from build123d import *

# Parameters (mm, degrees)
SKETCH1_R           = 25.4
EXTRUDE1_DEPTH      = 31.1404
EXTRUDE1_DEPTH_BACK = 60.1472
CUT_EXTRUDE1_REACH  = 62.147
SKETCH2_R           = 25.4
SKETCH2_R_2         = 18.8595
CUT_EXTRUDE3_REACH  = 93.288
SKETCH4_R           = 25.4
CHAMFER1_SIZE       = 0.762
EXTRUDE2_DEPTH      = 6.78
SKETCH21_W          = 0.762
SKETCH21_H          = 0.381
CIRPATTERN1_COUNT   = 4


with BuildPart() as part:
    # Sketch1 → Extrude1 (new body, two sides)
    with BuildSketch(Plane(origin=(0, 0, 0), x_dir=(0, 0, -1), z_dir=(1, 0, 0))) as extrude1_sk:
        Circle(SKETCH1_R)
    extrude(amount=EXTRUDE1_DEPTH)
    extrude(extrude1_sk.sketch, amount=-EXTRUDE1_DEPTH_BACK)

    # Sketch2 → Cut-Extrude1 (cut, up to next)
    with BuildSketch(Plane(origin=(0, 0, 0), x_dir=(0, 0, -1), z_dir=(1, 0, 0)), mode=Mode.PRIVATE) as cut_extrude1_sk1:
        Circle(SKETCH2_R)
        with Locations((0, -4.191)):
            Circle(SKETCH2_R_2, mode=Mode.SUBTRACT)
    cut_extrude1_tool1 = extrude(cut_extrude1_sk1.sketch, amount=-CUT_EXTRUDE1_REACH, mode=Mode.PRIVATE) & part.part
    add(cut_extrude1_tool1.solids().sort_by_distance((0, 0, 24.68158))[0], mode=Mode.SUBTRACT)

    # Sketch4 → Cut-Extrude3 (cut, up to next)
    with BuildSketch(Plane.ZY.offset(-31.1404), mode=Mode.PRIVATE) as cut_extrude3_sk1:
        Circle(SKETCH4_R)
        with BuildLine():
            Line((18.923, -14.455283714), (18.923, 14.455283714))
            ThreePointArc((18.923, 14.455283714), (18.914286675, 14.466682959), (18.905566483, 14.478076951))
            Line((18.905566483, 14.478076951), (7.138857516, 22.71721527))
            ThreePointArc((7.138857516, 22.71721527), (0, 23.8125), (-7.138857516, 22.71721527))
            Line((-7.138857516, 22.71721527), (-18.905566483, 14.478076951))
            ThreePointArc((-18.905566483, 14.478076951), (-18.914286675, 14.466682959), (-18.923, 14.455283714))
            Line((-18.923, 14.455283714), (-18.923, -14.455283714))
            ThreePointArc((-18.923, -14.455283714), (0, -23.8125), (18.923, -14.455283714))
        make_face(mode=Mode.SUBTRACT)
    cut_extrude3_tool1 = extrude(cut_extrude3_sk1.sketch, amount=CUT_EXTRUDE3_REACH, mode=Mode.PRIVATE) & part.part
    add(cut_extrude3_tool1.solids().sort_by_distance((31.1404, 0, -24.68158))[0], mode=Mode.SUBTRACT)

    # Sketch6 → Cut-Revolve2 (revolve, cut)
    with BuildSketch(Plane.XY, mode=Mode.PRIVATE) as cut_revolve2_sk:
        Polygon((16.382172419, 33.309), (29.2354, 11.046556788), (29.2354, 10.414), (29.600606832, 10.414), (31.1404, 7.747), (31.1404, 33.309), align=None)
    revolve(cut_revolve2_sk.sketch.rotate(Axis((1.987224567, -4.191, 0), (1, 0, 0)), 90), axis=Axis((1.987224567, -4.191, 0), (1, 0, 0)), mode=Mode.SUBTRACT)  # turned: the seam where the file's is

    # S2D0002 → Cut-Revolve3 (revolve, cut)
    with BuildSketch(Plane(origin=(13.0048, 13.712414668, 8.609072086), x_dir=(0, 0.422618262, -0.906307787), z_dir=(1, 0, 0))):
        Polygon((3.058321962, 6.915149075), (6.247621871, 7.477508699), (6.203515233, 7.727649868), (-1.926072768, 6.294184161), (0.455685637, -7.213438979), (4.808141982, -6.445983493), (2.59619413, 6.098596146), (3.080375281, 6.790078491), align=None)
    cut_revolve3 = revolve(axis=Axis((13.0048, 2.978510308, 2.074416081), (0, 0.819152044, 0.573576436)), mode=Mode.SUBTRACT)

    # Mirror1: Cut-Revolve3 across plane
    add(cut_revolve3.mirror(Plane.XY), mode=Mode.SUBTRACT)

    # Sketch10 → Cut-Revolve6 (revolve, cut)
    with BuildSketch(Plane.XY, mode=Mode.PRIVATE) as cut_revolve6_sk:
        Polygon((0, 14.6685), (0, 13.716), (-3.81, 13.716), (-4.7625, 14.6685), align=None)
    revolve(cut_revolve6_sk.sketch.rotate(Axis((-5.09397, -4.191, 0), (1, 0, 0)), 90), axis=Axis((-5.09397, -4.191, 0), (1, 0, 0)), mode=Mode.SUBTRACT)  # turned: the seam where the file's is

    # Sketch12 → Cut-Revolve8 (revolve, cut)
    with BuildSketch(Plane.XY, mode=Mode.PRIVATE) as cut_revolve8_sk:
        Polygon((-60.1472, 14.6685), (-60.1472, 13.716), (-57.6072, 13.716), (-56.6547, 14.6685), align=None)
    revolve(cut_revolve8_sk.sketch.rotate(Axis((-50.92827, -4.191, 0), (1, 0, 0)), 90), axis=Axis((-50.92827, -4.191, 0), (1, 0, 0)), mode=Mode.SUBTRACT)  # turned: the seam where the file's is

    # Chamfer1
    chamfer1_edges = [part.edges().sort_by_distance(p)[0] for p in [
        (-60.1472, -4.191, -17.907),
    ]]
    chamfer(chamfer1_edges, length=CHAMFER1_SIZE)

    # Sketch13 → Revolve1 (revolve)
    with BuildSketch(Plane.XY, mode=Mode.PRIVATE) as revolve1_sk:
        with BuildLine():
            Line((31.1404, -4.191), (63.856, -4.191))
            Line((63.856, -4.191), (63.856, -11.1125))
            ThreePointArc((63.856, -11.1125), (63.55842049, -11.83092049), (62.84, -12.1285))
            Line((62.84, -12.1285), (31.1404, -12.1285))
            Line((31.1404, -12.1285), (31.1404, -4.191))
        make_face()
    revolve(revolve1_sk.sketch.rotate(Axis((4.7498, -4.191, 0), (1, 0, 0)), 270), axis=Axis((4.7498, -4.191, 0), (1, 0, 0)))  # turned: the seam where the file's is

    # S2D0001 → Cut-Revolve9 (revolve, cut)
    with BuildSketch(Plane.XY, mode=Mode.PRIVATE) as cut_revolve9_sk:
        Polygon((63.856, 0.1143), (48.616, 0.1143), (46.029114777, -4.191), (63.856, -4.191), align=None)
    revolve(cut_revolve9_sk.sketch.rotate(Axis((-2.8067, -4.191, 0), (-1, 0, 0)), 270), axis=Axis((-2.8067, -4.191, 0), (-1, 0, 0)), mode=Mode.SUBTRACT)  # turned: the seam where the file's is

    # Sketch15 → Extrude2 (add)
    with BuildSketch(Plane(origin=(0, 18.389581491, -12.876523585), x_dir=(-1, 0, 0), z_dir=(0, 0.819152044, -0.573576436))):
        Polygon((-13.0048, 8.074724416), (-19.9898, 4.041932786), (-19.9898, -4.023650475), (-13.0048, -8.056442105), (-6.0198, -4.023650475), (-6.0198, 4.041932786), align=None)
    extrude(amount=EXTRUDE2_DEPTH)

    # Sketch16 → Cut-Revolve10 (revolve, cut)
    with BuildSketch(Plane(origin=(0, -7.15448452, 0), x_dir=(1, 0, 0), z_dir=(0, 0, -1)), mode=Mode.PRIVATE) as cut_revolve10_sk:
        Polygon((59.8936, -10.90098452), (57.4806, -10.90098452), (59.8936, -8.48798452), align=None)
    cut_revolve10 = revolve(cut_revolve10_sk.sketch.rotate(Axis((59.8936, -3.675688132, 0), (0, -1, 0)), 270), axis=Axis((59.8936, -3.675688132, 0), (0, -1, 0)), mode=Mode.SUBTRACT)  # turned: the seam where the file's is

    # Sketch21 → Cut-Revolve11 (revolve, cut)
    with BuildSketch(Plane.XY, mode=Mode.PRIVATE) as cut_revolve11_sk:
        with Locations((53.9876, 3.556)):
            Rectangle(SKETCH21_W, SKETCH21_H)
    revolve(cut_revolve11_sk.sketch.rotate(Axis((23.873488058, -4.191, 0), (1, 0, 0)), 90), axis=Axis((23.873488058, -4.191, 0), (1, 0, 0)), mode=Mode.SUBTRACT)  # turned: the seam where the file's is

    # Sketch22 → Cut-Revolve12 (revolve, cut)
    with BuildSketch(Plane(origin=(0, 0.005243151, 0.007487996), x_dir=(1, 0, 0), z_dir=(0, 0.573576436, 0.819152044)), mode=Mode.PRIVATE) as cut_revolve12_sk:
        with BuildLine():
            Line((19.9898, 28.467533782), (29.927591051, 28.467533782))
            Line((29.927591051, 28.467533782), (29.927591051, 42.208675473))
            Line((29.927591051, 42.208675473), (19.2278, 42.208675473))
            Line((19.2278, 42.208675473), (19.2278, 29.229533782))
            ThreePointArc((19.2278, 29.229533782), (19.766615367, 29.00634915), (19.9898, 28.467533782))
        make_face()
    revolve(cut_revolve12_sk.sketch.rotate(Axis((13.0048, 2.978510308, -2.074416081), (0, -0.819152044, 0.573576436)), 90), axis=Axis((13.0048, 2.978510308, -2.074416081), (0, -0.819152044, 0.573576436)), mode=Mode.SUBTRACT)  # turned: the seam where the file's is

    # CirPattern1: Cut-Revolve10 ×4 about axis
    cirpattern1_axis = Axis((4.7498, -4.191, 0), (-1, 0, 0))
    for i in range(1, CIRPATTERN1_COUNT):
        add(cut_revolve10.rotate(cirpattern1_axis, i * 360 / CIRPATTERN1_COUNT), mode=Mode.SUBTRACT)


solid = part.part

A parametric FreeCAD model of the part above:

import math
import FreeCAD as App
import Part
import Sketcher
Q = App.Units.Quantity


def edges_at(feature, points):
    """Names of the edges that pass closest to the given points."""
    edges = feature.Shape.Edges
    near = lambda p: min(range(len(edges)), key=lambda i: edges[i].distToShape(Part.Vertex(*p))[0])
    return sorted({f"Edge{near(p) + 1}" for p in points})

doc = App.newDocument("Part")
body = doc.addObject("PartDesign::Body", "Body")

sketch1 = body.newObject("Sketcher::SketchObject", "Sketch")
sketch1.AttachmentSupport = (doc.getObject("YZ_Plane"), [""])
sketch1.MapMode = "FlatFace"
sketch1.addGeometry(Part.Circle(App.Vector(0, 0, 0), App.Vector(0, 0, 1), 25.4), False)
sketch1.addConstraint(Sketcher.Constraint("Coincident", 0, 3, -1, 1))
sketch1.addConstraint(Sketcher.Constraint("Diameter", 0, Q("2 in")))
pad1 = body.newObject("PartDesign::Pad", "Pad")
pad1.Profile = sketch1
pad1.Type = "TwoLengths"
pad1.Length = Q("1.226 in")
pad1.Length2 = Q("2.368 in")

sketch2 = body.newObject("Sketcher::SketchObject", "Sketch001")
sketch2.AttachmentSupport = (doc.getObject("YZ_Plane"), [""])
sketch2.MapMode = "FlatFace"
sketch2.addGeometry(Part.Circle(App.Vector(0, 0, 0), App.Vector(0, 0, 1), 25.4), False)
sketch2.addGeometry(Part.Circle(App.Vector(-4.191, 0, 0), App.Vector(0, 0, 1), 18.8595), False)
sketch2.addConstraint(Sketcher.Constraint("Coincident", 0, 3, -1, 1))
sketch2.addConstraint(Sketcher.Constraint("PointOnObject", 1, 3, -1))
sketch2.addConstraint(Sketcher.Constraint("Diameter", 0, Q("2 in")))
sketch2.addConstraint(Sketcher.Constraint("Diameter", 1, Q("1.485 in")))
sketch2.addConstraint(Sketcher.Constraint("DistanceX", 1, 3, -1, 1, Q("0.165 in")))
pocket1 = body.newObject("PartDesign::Pocket", "Pocket")
pocket1.Profile = sketch2
pocket1.Type = "UpToFirst"

sketch3 = body.newObject("Sketcher::SketchObject", "Sketch002")
sketch3.AttachmentSupport = (doc.getObject("YZ_Plane"), [""])
sketch3.MapMode = "FlatFace"
sketch3.AttachmentOffset = App.Placement(App.Vector(0, 0, 1.226 * 25.4), App.Rotation())
sketch3.addGeometry(Part.Circle(App.Vector(0, 0, 0), App.Vector(0, 0, 1), 25.4), False)
sketch3.addGeometry(Part.LineSegment(App.Vector(14.455284, 18.923, 0), App.Vector(-14.455284, 18.923, 0)), False)
sketch3.addGeometry(Part.ArcOfCircle(Part.Circle(App.Vector(0, 0, 0), App.Vector(0, 0, 1), 23.8125), math.radians(127.376217), math.radians(232.623783)), False)
sketch3.addGeometry(Part.LineSegment(App.Vector(-14.455284, -18.923, 0), App.Vector(14.455284, -18.923, 0)), False)
sketch3.addGeometry(Part.ArcOfCircle(Part.Circle(App.Vector(0.000919, -0.001202, 0), App.Vector(0, 0, 1), 23.810987), math.radians(-52.623785), math.radians(-52.554734)), False)
sketch3.addGeometry(Part.LineSegment(App.Vector(14.478077, -18.905566, 0), App.Vector(22.717215, -7.138858, 0)), False)
sketch3.addGeometry(Part.ArcOfCircle(Part.Circle(App.Vector(0, 0, 0), App.Vector(0, 0, 1), 23.8125), math.radians(-17.445263), math.radians(17.445263)), False)
sketch3.addGeometry(Part.LineSegment(App.Vector(22.717215, 7.138858, 0), App.Vector(14.478077, 18.905566, 0)), False)
sketch3.addGeometry(Part.ArcOfCircle(Part.Circle(App.Vector(0.000919, 0.001202, 0), App.Vector(0, 0, 1), 23.810987), math.radians(52.554734), math.radians(52.623785)), False)
sketch3.addConstraint(Sketcher.Constraint("Coincident", 1, 2, 2, 1))
sketch3.addConstraint(Sketcher.Constraint("Coincident", 2, 2, 3, 1))
sketch3.addConstraint(Sketcher.Constraint("Coincident", 3, 2, 4, 1))
sketch3.addConstraint(Sketcher.Constraint("Coincident", 4, 2, 5, 1))
sketch3.addConstraint(Sketcher.Constraint("Coincident", 5, 2, 6, 1))
sketch3.addConstraint(Sketcher.Constraint("Coincident", 6, 2, 7, 1))
sketch3.addConstraint(Sketcher.Constraint("Coincident", 7, 2, 8, 1))
sketch3.addConstraint(Sketcher.Constraint("Coincident", 8, 2, 1, 1))
sketch3.addConstraint(Sketcher.Constraint("Horizontal", 1))
sketch3.addConstraint(Sketcher.Constraint("Horizontal", 3))
sketch3.addConstraint(Sketcher.Constraint("Coincident", 0, 3, -1, 1))
sketch3.addConstraint(Sketcher.Constraint("Coincident", 2, 3, -1, 1))
sketch3.addConstraint(Sketcher.Constraint("Coincident", 6, 3, -1, 1))
sketch3.addConstraint(Sketcher.Constraint("Equal", 2, 6))
sketch3.addConstraint(Sketcher.Constraint("Equal", 4, 8))
sketch3.addConstraint(Sketcher.Constraint("Symmetric", 1, 2, 3, 2, -1, 1))
sketch3.addConstraint(Sketcher.Constraint("Symmetric", 4, 3, 8, 3, -1))
sketch3.addConstraint(Sketcher.Constraint("Vertical", 5, 2, 6, 2))
sketch3.addConstraint(Sketcher.Constraint("Vertical", 4, 2, 7, 2))
sketch3.addConstraint(Sketcher.Constraint("Diameter", 0, Q("2 in")))
sketch3.addConstraint(Sketcher.Constraint("Angle", 5, Q("55 deg")))
sketch3.addConstraint(Sketcher.Constraint("Radius", 2, Q("0.9375 in")))
sketch3.addConstraint(Sketcher.Constraint("DistanceY", -1, 1, 1, 2, Q("0.745 in")))
sketch3.addConstraint(Sketcher.Constraint("Radius", 4, 23.810987))
sketch3.addConstraint(Sketcher.Constraint("Distance", 5, 14.364499))
sketch3.addConstraint(Sketcher.Constraint("DistanceY", 4, 3, -1, 1, 0.001202))
pocket2 = body.newObject("PartDesign::Pocket", "Pocket001")
pocket2.Profile = sketch3
pocket2.Type = "UpToFirst"

sketch4 = body.newObject("Sketcher::SketchObject", "Sketch003")
sketch4.AttachmentSupport = (doc.getObject("XY_Plane"), [""])
sketch4.MapMode = "FlatFace"
sketch4.addGeometry(Part.LineSegment(App.Vector(16.382172, 33.309, 0), App.Vector(29.2354, 11.046557, 0)), False)
sketch4.addGeometry(Part.LineSegment(App.Vector(29.2354, 11.046557, 0), App.Vector(29.2354, 10.414, 0)), False)
sketch4.addGeometry(Part.LineSegment(App.Vector(29.2354, 10.414, 0), App.Vector(29.600607, 10.414, 0)), False)
sketch4.addGeometry(Part.LineSegment(App.Vector(29.600607, 10.414, 0), App.Vector(31.1404, 7.747, 0)), False)
sketch4.addGeometry(Part.LineSegment(App.Vector(31.1404, 7.747, 0), App.Vector(31.1404, 33.309, 0)), False)
sketch4.addGeometry(Part.LineSegment(App.Vector(31.1404, 33.309, 0), App.Vector(16.382172, 33.309, 0)), False)
sketch4.addGeometry(Part.LineSegment(App.Vector(16.382172, -4.191, 0), App.Vector(31.1404, -4.191, 0)), True)
sketch4.addConstraint(Sketcher.Constraint("Coincident", 0, 2, 1, 1))
sketch4.addConstraint(Sketcher.Constraint("Coincident", 1, 2, 2, 1))
sketch4.addConstraint(Sketcher.Constraint("Coincident", 2, 2, 3, 1))
sketch4.addConstraint(Sketcher.Constraint("Coincident", 3, 2, 4, 1))
sketch4.addConstraint(Sketcher.Constraint("Coincident", 4, 2, 5, 1))
sketch4.addConstraint(Sketcher.Constraint("Coincident", 5, 2, 0, 1))
sketch4.addConstraint(Sketcher.Constraint("Vertical", 1))
sketch4.addConstraint(Sketcher.Constraint("Horizontal", 2))
sketch4.addConstraint(Sketcher.Constraint("Vertical", 4))
sketch4.addConstraint(Sketcher.Constraint("Horizontal", 5))
sketch4.addConstraint(Sketcher.Constraint("Horizontal", 6))
sketch4.addConstraint(Sketcher.Constraint("Parallel", 0, 3))
sketch4.addConstraint(Sketcher.Constraint("Vertical", 5, 2, 6, 1))
sketch4.addConstraint(Sketcher.Constraint("Vertical", 4, 2, 6, 2))
sketch4.addConstraint(Sketcher.Constraint("Angle", 0, Q("-60 deg")))
sketch4.addConstraint(Sketcher.Constraint("DistanceY", -1, 1, 1, 2, Q("0.41 in")))
sketch4.addConstraint(Sketcher.Constraint("DistanceY", 6, 1, 3, 2, Q("0.47 in")))
sketch4.addConstraint(Sketcher.Constraint("DistanceX", -1, 1, 0, 2, Q("1.151 in")))
sketch4.addConstraint(Sketcher.Constraint("DistanceX", -1, 1, 3, 2, Q("1.226 in")))
sketch4.addConstraint(Sketcher.Constraint("DistanceY", -1, 1, 3, 2, Q("0.305 in")))
sketch4.addConstraint(Sketcher.Constraint("DistanceY", 4, 1, 4, 2, 25.562))
sketch4.addConstraint(Sketcher.Constraint("DistanceX", 5, 2, 5, 1, 14.758228))
groove = body.newObject("PartDesign::Groove", "Groove")
groove.Profile = sketch4
groove.ReferenceAxis = (sketch4, ["Axis0"])
groove.Angle = 360

sketch5 = body.newObject("Sketcher::SketchObject", "Sketch004")
sketch5.AttachmentSupport = (doc.getObject("YZ_Plane"), [""])
sketch5.MapMode = "FlatFace"
sketch5.AttachmentOffset = App.Placement(App.Vector(0, 0, 0.512 * 25.4), App.Rotation())
sketch5.addGeometry(Part.LineSegment(App.Vector(21.272171, 8.759759, 0), App.Vector(23.129698, 6.106935, 0)), False)
sketch5.addGeometry(Part.LineSegment(App.Vector(23.129698, 6.106935, 0), App.Vector(23.337763, 6.252624, 0)), False)
sketch5.addGeometry(Part.LineSegment(App.Vector(23.337763, 6.252624, 0), App.Vector(18.602889, 13.014724, 0)), False)
sketch5.addGeometry(Part.LineSegment(App.Vector(18.602889, 13.014724, 0), App.Vector(7.3674, 5.14755, 0)), False)
sketch5.addGeometry(Part.LineSegment(App.Vector(7.3674, 5.14755, 0), App.Vector(9.902378, 1.527225, 0)), False)
sketch5.addGeometry(Part.LineSegment(App.Vector(9.902378, 1.527225, 0), App.Vector(20.336819, 8.833499, 0)), False)
sketch5.addGeometry(Part.LineSegment(App.Vector(20.336819, 8.833499, 0), App.Vector(21.168139, 8.686915, 0)), False)
sketch5.addGeometry(Part.LineSegment(App.Vector(21.168139, 8.686915, 0), App.Vector(21.272171, 8.759759, 0)), False)
sketch5.addGeometry(Part.LineSegment(App.Vector(7.3674, 5.14755, 0), App.Vector(18.602889, 13.014724, 0)), True)
sketch5.addConstraint(Sketcher.Constraint("Coincident", 0, 2, 1, 1))
sketch5.addConstraint(Sketcher.Constraint("Coincident", 1, 2, 2, 1))
sketch5.addConstraint(Sketcher.Constraint("Coincident", 2, 2, 3, 1))
sketch5.addConstraint(Sketcher.Constraint("Coincident", 3, 2, 4, 1))
sketch5.addConstraint(Sketcher.Constraint("Coincident", 4, 2, 5, 1))
sketch5.addConstraint(Sketcher.Constraint("Coincident", 5, 2, 6, 1))
sketch5.addConstraint(Sketcher.Constraint("Coincident", 6, 2, 7, 1))
sketch5.addConstraint(Sketcher.Constraint("Coincident", 7, 2, 0, 1))
sketch5.addConstraint(Sketcher.Constraint("Coincident", 8, 1, 3, 2))
sketch5.addConstraint(Sketcher.Constraint("Coincident", 8, 2, 2, 2))
sketch5.addConstraint(Sketcher.Constraint("Perpendicular", 0, 1))
sketch5.addConstraint(Sketcher.Constraint("Perpendicular", 1, 2))
sketch5.addConstraint(Sketcher.Constraint("Perpendicular", 2, 3))
sketch5.addConstraint(Sketcher.Constraint("Perpendicular", 3, 4))
sketch5.addConstraint(Sketcher.Constraint("Perpendicular", 4, 5))
sketch5.addConstraint(Sketcher.Constraint("Parallel", 5, 7))
sketch5.addConstraint(Sketcher.Constraint("Angle", 0, Q("-55 deg")))
sketch5.addConstraint(Sketcher.Constraint("Angle", 6, Q("-10 deg")))
sketch5.addConstraint(Sketcher.Constraint("Distance", 1, Q("0.01 in")))
sketch5.addConstraint(Sketcher.Constraint("Distance", 3, Q("0.54 in")))
sketch5.addConstraint(Sketcher.Constraint("Distance", 2, Q("0.325 in")))
sketch5.addConstraint(Sketcher.Constraint("Distance", 4, Q("0.174 in")))
sketch5.addConstraint(Sketcher.Constraint("Distance", 7, Q("0.005 in")))
sketch5.addConstraint(Sketcher.Constraint("Distance", 0, Q("0.1275 in")))
sketch5.addConstraint(Sketcher.Constraint("DistanceX", -1, 1, 0, 2, 23.129698))
sketch5.addConstraint(Sketcher.Constraint("DistanceY", -1, 1, 5, 2, 8.833499))
groove2 = body.newObject("PartDesign::Groove", "Groove001")
groove2.Profile = sketch5
groove2.ReferenceAxis = (sketch5, ["Axis0"])
groove2.Angle = 360
doc.recompute()

mirrored = body.newObject("PartDesign::Mirrored", "Mirrored")
mirrored.Originals = [groove2]
mirrored.MirrorPlane = (doc.getObject("XY_Plane"), [""])
body.Tip = mirrored

sketch6 = body.newObject("Sketcher::SketchObject", "Sketch005")
sketch6.AttachmentSupport = (doc.getObject("XY_Plane"), [""])
sketch6.MapMode = "FlatFace"
sketch6.addGeometry(Part.LineSegment(App.Vector(0, 13.716, 0), App.Vector(0, 14.6685, 0)), False)
sketch6.addGeometry(Part.LineSegment(App.Vector(0, 14.6685, 0), App.Vector(-4.7625, 14.6685, 0)), False)
sketch6.addGeometry(Part.LineSegment(App.Vector(-4.7625, 14.6685, 0), App.Vector(-3.81, 13.716, 0)), False)
sketch6.addGeometry(Part.LineSegment(App.Vector(-3.81, 13.716, 0), App.Vector(0, 13.716, 0)), False)
sketch6.addGeometry(Part.LineSegment(App.Vector(-4.7625, -4.191, 0), App.Vector(0, -4.191, 0)), True)
sketch6.addConstraint(Sketcher.Constraint("Coincident", 0, 2, 1, 1))
sketch6.addConstraint(Sketcher.Constraint("Coincident", 1, 2, 2, 1))
sketch6.addConstraint(Sketcher.Constraint("Coincident", 2, 2, 3, 1))
sketch6.addConstraint(Sketcher.Constraint("Coincident", 3, 2, 0, 1))
sketch6.addConstraint(Sketcher.Constraint("Vertical", 0))
sketch6.addConstraint(Sketcher.Constraint("Horizontal", 1))
sketch6.addConstraint(Sketcher.Constraint("Horizontal", 3))
sketch6.addConstraint(Sketcher.Constraint("Horizontal", 4))
sketch6.addConstraint(Sketcher.Constraint("PointOnObject", 0, 2, -2))
sketch6.addConstraint(Sketcher.Constraint("PointOnObject", 4, 2, -2))
sketch6.addConstraint(Sketcher.Constraint("Vertical", 1, 2, 4, 1))
sketch6.addConstraint(Sketcher.Constraint("Angle", 2, Q("-45 deg")))
sketch6.addConstraint(Sketcher.Constraint("DistanceX", 3, 1, 3, 2, Q("0.15 in")))
sketch6.addConstraint(Sketcher.Constraint("DistanceX", 1, 2, 1, 1, Q("0.1875 in")))
sketch6.addConstraint(Sketcher.Constraint("DistanceY", -1, 1, 2, 2, Q("0.54 in")))
sketch6.addConstraint(Sketcher.Constraint("DistanceY", 4, 1, -1, 1, Q("0.165 in")))
groove3 = body.newObject("PartDesign::Groove", "Groove002")
groove3.Profile = sketch6
groove3.ReferenceAxis = (sketch6, ["Axis0"])
groove3.Angle = 360

sketch7 = body.newObject("Sketcher::SketchObject", "Sketch006")
sketch7.AttachmentSupport = (doc.getObject("XY_Plane"), [""])
sketch7.MapMode = "FlatFace"
sketch7.addGeometry(Part.LineSegment(App.Vector(-60.1472, 14.6685, 0), App.Vector(-60.1472, 13.716, 0)), False)
sketch7.addGeometry(Part.LineSegment(App.Vector(-60.1472, 13.716, 0), App.Vector(-57.6072, 13.716, 0)), False)
sketch7.addGeometry(Part.LineSegment(App.Vector(-57.6072, 13.716, 0), App.Vector(-56.6547, 14.6685, 0)), False)
sketch7.addGeometry(Part.LineSegment(App.Vector(-56.6547, 14.6685, 0), App.Vector(-60.1472, 14.6685, 0)), False)
sketch7.addGeometry(Part.LineSegment(App.Vector(-60.1472, -4.191, 0), App.Vector(-56.6547, -4.191, 0)), True)
sketch7.addConstraint(Sketcher.Constraint("Coincident", 0, 2, 1, 1))
sketch7.addConstraint(Sketcher.Constraint("Coincident", 1, 2, 2, 1))
sketch7.addConstraint(Sketcher.Constraint("Coincident", 2, 2, 3, 1))
sketch7.addConstraint(Sketcher.Constraint("Coincident", 3, 2, 0, 1))
sketch7.addConstraint(Sketcher.Constraint("Vertical", 0))
sketch7.addConstraint(Sketcher.Constraint("Horizontal", 1))
sketch7.addConstraint(Sketcher.Constraint("Horizontal", 3))
sketch7.addConstraint(Sketcher.Constraint("Horizontal", 4))
sketch7.addConstraint(Sketcher.Constraint("Vertical", 3, 2, 4, 1))
sketch7.addConstraint(Sketcher.Constraint("Vertical", 2, 2, 4, 2))
sketch7.addConstraint(Sketcher.Constraint("DistanceX", 1, 1, 1, 2, Q("0.1 in")))
sketch7.addConstraint(Sketcher.Constraint("Angle", 2, Q("45 deg")))
sketch7.addConstraint(Sketcher.Constraint("DistanceY", -1, 1, 0, 2, Q("0.54 in")))
sketch7.addConstraint(Sketcher.Constraint("DistanceX", 3, 2, 3, 1, Q("0.1375 in")))
sketch7.addConstraint(Sketcher.Constraint("DistanceX", 0, 2, -1, 1, Q("2.368 in")))
sketch7.addConstraint(Sketcher.Constraint("DistanceY", 4, 1, -1, 1, Q("0.165 in")))
groove4 = body.newObject("PartDesign::Groove", "Groove003")
groove4.Profile = sketch7
groove4.ReferenceAxis = (sketch7, ["Axis0"])
groove4.Angle = 360
doc.recompute()

chamfer = body.newObject("PartDesign::Chamfer", "Chamfer")
chamfer.Base = (groove4, edges_at(groove4, [(-60.147, -4.191, -17.907)]))
chamfer.Size = Q("0.03 in")

sketch8 = body.newObject("Sketcher::SketchObject", "Sketch007")
sketch8.AttachmentSupport = (doc.getObject("XY_Plane"), [""])
sketch8.MapMode = "FlatFace"
sketch8.addGeometry(Part.LineSegment(App.Vector(63.856, -4.191, 0), App.Vector(31.1404, -4.191, 0)), False)
sketch8.addGeometry(Part.LineSegment(App.Vector(31.1404, -4.191, 0), App.Vector(31.1404, -12.1285, 0)), False)
sketch8.addGeometry(Part.LineSegment(App.Vector(31.1404, -12.1285, 0), App.Vector(62.84, -12.1285, 0)), False)
sketch8.addGeometry(Part.ArcOfCircle(Part.Circle(App.Vector(62.84, -11.1125, 0), App.Vector(0, 0, 1), 1.016), math.radians(-90), math.radians(0)), False)
sketch8.addGeometry(Part.LineSegment(App.Vector(63.856, -11.1125, 0), App.Vector(63.856, -4.191, 0)), False)
sketch8.addGeometry(Part.LineSegment(App.Vector(31.1404, -4.191, 0), App.Vector(63.856, -4.191, 0)), True)
sketch8.addConstraint(Sketcher.Constraint("Coincident", 0, 2, 1, 1))
sketch8.addConstraint(Sketcher.Constraint("Coincident", 1, 2, 2, 1))
sketch8.addConstraint(Sketcher.Constraint("Tangent", 2, 2, 3, 1))
sketch8.addConstraint(Sketcher.Constraint("Tangent", 3, 2, 4, 1))
sketch8.addConstraint(Sketcher.Constraint("Coincident", 4, 2, 0, 1))
sketch8.addConstraint(Sketcher.Constraint("Horizontal", 0))
sketch8.addConstraint(Sketcher.Constraint("Vertical", 1))
sketch8.addConstraint(Sketcher.Constraint("Horizontal", 2))
sketch8.addConstraint(Sketcher.Constraint("Vertical", 4))
sketch8.addConstraint(Sketcher.Constraint("Horizontal", 5))
sketch8.addConstraint(Sketcher.Constraint("Coincident", 5, 1, 0, 2))
sketch8.addConstraint(Sketcher.Constraint("Vertical", 3, 2, 5, 2))
sketch8.addConstraint(Sketcher.Constraint("Radius", 3, Q("0.04 in")))
sketch8.addConstraint(Sketcher.Constraint("DistanceY", 1, 2, 1, 1, Q("0.3125 in")))
sketch8.addConstraint(Sketcher.Constraint("DistanceY", 3, 3, -1, 1, Q("0.4375 in")))
sketch8.addConstraint(Sketcher.Constraint("DistanceX", -1, 1, 0, 2, Q("1.226 in")))
sketch8.addConstraint(Sketcher.Constraint("DistanceX", 0, 2, 0, 1, 32.7156))
revolution = body.newObject("PartDesign::Revolution", "Revolution")
revolution.Profile = sketch8
revolution.ReferenceAxis = (sketch8, ["Axis0"])
revolution.Angle = 360

sketch9 = body.newObject("Sketcher::SketchObject", "Sketch008")
sketch9.AttachmentSupport = (doc.getObject("XY_Plane"), [""])
sketch9.MapMode = "FlatFace"
sketch9.addGeometry(Part.LineSegment(App.Vector(63.856, 0.1143, 0), App.Vector(48.616, 0.1143, 0)), False)
sketch9.addGeometry(Part.LineSegment(App.Vector(48.616, 0.1143, 0), App.Vector(46.029115, -4.191, 0)), False)
sketch9.addGeometry(Part.LineSegment(App.Vector(46.029115, -4.191, 0), App.Vector(63.856, -4.191, 0)), False)
sketch9.addGeometry(Part.LineSegment(App.Vector(63.856, -4.191, 0), App.Vector(63.856, 0.1143, 0)), False)
sketch9.addGeometry(Part.LineSegment(App.Vector(63.856, -4.191, 0), App.Vector(46.029115, -4.191, 0)), True)
sketch9.addConstraint(Sketcher.Constraint("Coincident", 0, 2, 1, 1))
sketch9.addConstraint(Sketcher.Constraint("Coincident", 1, 2, 2, 1))
sketch9.addConstraint(Sketcher.Constraint("Coincident", 2, 2, 3, 1))
sketch9.addConstraint(Sketcher.Constraint("Coincident", 3, 2, 0, 1))
sketch9.addConstraint(Sketcher.Constraint("Horizontal", 0))
sketch9.addConstraint(Sketcher.Constraint("Horizontal", 2))
sketch9.addConstraint(Sketcher.Constraint("Vertical", 3))
sketch9.addConstraint(Sketcher.Constraint("Horizontal", 4))
sketch9.addConstraint(Sketcher.Constraint("Coincident", 4, 1, 2, 2))
sketch9.addConstraint(Sketcher.Constraint("Equal", 2, 4))
sketch9.addConstraint(Sketcher.Constraint("DistanceX", 0, 2, 0, 1, Q("0.6 in")))
sketch9.addConstraint(Sketcher.Constraint("Angle", 1, Q("-121 deg")))
sketch9.addConstraint(Sketcher.Constraint("DistanceY", 3, 1, 3, 2, Q("0.1695 in")))
sketch9.addConstraint(Sketcher.Constraint("DistanceY", 1, 2, -1, 1, Q("0.165 in")))
sketch9.addConstraint(Sketcher.Constraint("DistanceX", -1, 1, 0, 2, 48.616))
groove5 = body.newObject("PartDesign::Groove", "Groove004")
groove5.Profile = sketch9
groove5.ReferenceAxis = (sketch9, ["Axis0"])
groove5.Angle = 360

sketch10 = body.newObject("Sketcher::SketchObject", "Sketch009")
sketch10.Placement = App.Placement(App.Vector(0, 18.389581, -12.876524), App.Rotation(App.Vector(-1, 0, 0), App.Vector(0, 0.573576436, 0.819152044), App.Vector(0, 0.819152044, -0.573576436), "ZXY"))
sketch10.addGeometry(Part.LineSegment(App.Vector(-13.0048, 8.074724, 0), App.Vector(-19.9898, 4.041933, 0)), False)
sketch10.addGeometry(Part.LineSegment(App.Vector(-19.9898, 4.041933, 0), App.Vector(-19.9898, -4.02365, 0)), False)
sketch10.addGeometry(Part.LineSegment(App.Vector(-19.9898, -4.02365, 0), App.Vector(-13.0048, -8.056442, 0)), False)
sketch10.addGeometry(Part.LineSegment(App.Vector(-13.0048, -8.056442, 0), App.Vector(-6.0198, -4.02365, 0)), False)
sketch10.addGeometry(Part.LineSegment(App.Vector(-6.0198, -4.02365, 0), App.Vector(-6.0198, 4.041933, 0)), False)
sketch10.addGeometry(Part.LineSegment(App.Vector(-6.0198, 4.041933, 0), App.Vector(-13.0048, 8.074724, 0)), False)
sketch10.addConstraint(Sketcher.Constraint("Coincident", 0, 2, 1, 1))
sketch10.addConstraint(Sketcher.Constraint("Coincident", 1, 2, 2, 1))
sketch10.addConstraint(Sketcher.Constraint("Coincident", 2, 2, 3, 1))
sketch10.addConstraint(Sketcher.Constraint("Coincident", 3, 2, 4, 1))
sketch10.addConstraint(Sketcher.Constraint("Coincident", 4, 2, 5, 1))
sketch10.addConstraint(Sketcher.Constraint("Coincident", 5, 2, 0, 1))
sketch10.addConstraint(Sketcher.Constraint("Vertical", 1))
sketch10.addConstraint(Sketcher.Constraint("Vertical", 4))
sketch10.addConstraint(Sketcher.Constraint("Parallel", 0, 3))
sketch10.addConstraint(Sketcher.Constraint("Parallel", 2, 5))
sketch10.addConstraint(Sketcher.Constraint("Horizontal", 1, 2, 3, 2))
sketch10.addConstraint(Sketcher.Constraint("Horizontal", 0, 2, 4, 2))
sketch10.addConstraint(Sketcher.Constraint("Vertical", 2, 2, 5, 2))
sketch10.addConstraint(Sketcher.Constraint("Angle", 0, Q("-150 deg")))
sketch10.addConstraint(Sketcher.Constraint("DistanceX", 1, 2, 3, 2, Q("0.55 in")))
sketch10.addConstraint(Sketcher.Constraint("DistanceX", 0, 2, -1, 1, Q("0.787 in")))
sketch10.addConstraint(Sketcher.Constraint("DistanceY", 1, 2, 1, 1, 8.065583))
sketch10.addConstraint(Sketcher.Constraint("DistanceY", 1, 2, -1, 1, 4.02365))
pad2 = body.newObject("PartDesign::Pad", "Pad001")
pad2.Profile = sketch10
pad2.Length = 6.78

sketch11 = body.newObject("Sketcher::SketchObject", "Sketch010")
sketch11.AttachmentSupport = (doc.getObject("XY_Plane"), [""])
sketch11.MapMode = "FlatFace"
sketch11.addGeometry(Part.LineSegment(App.Vector(57.4806, 3.7465, 0), App.Vector(59.8936, 3.7465, 0)), False)
sketch11.addGeometry(Part.LineSegment(App.Vector(59.8936, 3.7465, 0), App.Vector(59.8936, 1.3335, 0)), False)
sketch11.addGeometry(Part.LineSegment(App.Vector(59.8936, 1.3335, 0), App.Vector(57.4806, 3.7465, 0)), False)
sketch11.addGeometry(Part.LineSegment(App.Vector(59.8936, 3.7465, 0), App.Vector(59.8936, 1.3335, 0)), True)
sketch11.addConstraint(Sketcher.Constraint("Coincident", 0, 2, 1, 1))
sketch11.addConstraint(Sketcher.Constraint("Coincident", 1, 2, 2, 1))
sketch11.addConstraint(Sketcher.Constraint("Coincident", 2, 2, 0, 1))
sketch11.addConstraint(Sketcher.Constraint("Horizontal", 0))
sketch11.addConstraint(Sketcher.Constraint("Vertical", 1))
sketch11.addConstraint(Sketcher.Constraint("Vertical", 3))
sketch11.addConstraint(Sketcher.Constraint("Coincident", 3, 1, 0, 2))
sketch11.addConstraint(Sketcher.Constraint("Equal", 0, 1))
sketch11.addConstraint(Sketcher.Constraint("Equal", 1, 3))
sketch11.addConstraint(Sketcher.Constraint("DistanceX", 0, 1, 0, 2, Q("0.095 in")))
sketch11.addConstraint(Sketcher.Constraint("DistanceY", -1, 1, 0, 2, Q("0.1475 in")))
sketch11.addConstraint(Sketcher.Constraint("DistanceX", -1, 1, 0, 2, 59.8936))
groove6 = body.newObject("PartDesign::Groove", "Groove005")
groove6.Profile = sketch11
groove6.ReferenceAxis = (sketch11, ["Axis0"])
groove6.Angle = 360

sketch12 = body.newObject("Sketcher::SketchObject", "Sketch011")
sketch12.AttachmentSupport = (doc.getObject("XY_Plane"), [""])
sketch12.MapMode = "FlatFace"
sketch12.addGeometry(Part.LineSegment(App.Vector(53.6066, 3.7465, 0), App.Vector(53.6066, 3.3655, 0)), False)
sketch12.addGeometry(Part.LineSegment(App.Vector(53.6066, 3.3655, 0), App.Vector(54.3686, 3.3655, 0)), False)
sketch12.addGeometry(Part.LineSegment(App.Vector(54.3686, 3.3655, 0), App.Vector(54.3686, 3.7465, 0)), False)
sketch12.addGeometry(Part.LineSegment(App.Vector(54.3686, 3.7465, 0), App.Vector(53.6066, 3.7465, 0)), False)
sketch12.addGeometry(Part.LineSegment(App.Vector(53.6066, -4.191, 0), App.Vector(54.3686, -4.191, 0)), True)
sketch12.addConstraint(Sketcher.Constraint("Coincident", 0, 2, 1, 1))
sketch12.addConstraint(Sketcher.Constraint("Coincident", 1, 2, 2, 1))
sketch12.addConstraint(Sketcher.Constraint("Coincident", 2, 2, 3, 1))
sketch12.addConstraint(Sketcher.Constraint("Coincident", 3, 2, 0, 1))
sketch12.addConstraint(Sketcher.Constraint("Vertical", 0))
sketch12.addConstraint(Sketcher.Constraint("Horizontal", 1))
sketch12.addConstraint(Sketcher.Constraint("Vertical", 2))
sketch12.addConstraint(Sketcher.Constraint("Horizontal", 3))
sketch12.addConstraint(Sketcher.Constraint("Horizontal", 4))
sketch12.addConstraint(Sketcher.Constraint("Vertical", 3, 2, 4, 1))
sketch12.addConstraint(Sketcher.Constraint("Vertical", 2, 2, 4, 2))
sketch12.addConstraint(Sketcher.Constraint("DistanceX", 1, 1, 1, 2, Q("0.03 in")))
sketch12.addConstraint(Sketcher.Constraint("DistanceY", 0, 2, 0, 1, Q("0.015 in")))
sketch12.addConstraint(Sketcher.Constraint("DistanceY", 4, 1, -1, 1, Q("0.165 in")))
sketch12.addConstraint(Sketcher.Constraint("DistanceY", 4, 1, 3, 2, Q("0.3125 in")))
sketch12.addConstraint(Sketcher.Constraint("DistanceX", -1, 1, 0, 2, 53.6066))
groove7 = body.newObject("PartDesign::Groove", "Groove006")
groove7.Profile = sketch12
groove7.ReferenceAxis = (sketch12, ["Axis0"])
groove7.Angle = 360

sketch13 = body.newObject("Sketcher::SketchObject", "Sketch012")
sketch13.Placement = App.Placement(App.Vector(0, 0.005243, 0.007488), App.Rotation(App.Vector(1, 0, 0), App.Vector(0, 0.819152044, -0.573576436), App.Vector(0, 0.573576436, 0.819152044), "ZXY"))
sketch13.addGeometry(Part.LineSegment(App.Vector(19.9898, 28.467534, 0), App.Vector(29.927591, 28.467534, 0)), False)
sketch13.addGeometry(Part.LineSegment(App.Vector(29.927591, 28.467534, 0), App.Vector(29.927591, 42.208675, 0)), False)
sketch13.addGeometry(Part.LineSegment(App.Vector(29.927591, 42.208675, 0), App.Vector(19.2278, 42.208675, 0)), False)
sketch13.addGeometry(Part.LineSegment(App.Vector(19.2278, 42.208675, 0), App.Vector(19.2278, 29.229534, 0)), False)
sketch13.addGeometry(Part.ArcOfCircle(Part.Circle(App.Vector(19.2278, 28.467534, 0), App.Vector(0, 0, 1), 0.762), math.radians(0), math.radians(90)), False)
sketch13.addGeometry(Part.LineSegment(App.Vector(13.0048, 42.208675, 0), App.Vector(13.0048, 28.467534, 0)), True)
sketch13.addConstraint(Sketcher.Constraint("Coincident", 0, 2, 1, 1))
sketch13.addConstraint(Sketcher.Constraint("Coincident", 1, 2, 2, 1))
sketch13.addConstraint(Sketcher.Constraint("Coincident", 2, 2, 3, 1))
sketch13.addConstraint(Sketcher.Constraint("Coincident", 3, 2, 4, 2))
sketch13.addConstraint(Sketcher.Constraint("Coincident", 4, 1, 0, 1))
sketch13.addConstraint(Sketcher.Constraint("Horizontal", 0))
sketch13.addConstraint(Sketcher.Constraint("Vertical", 1))
sketch13.addConstraint(Sketcher.Constraint("Horizontal", 2))
sketch13.addConstraint(Sketcher.Constraint("Vertical", 3))
sketch13.addConstraint(Sketcher.Constraint("Vertical", 5))
sketch13.addConstraint(Sketcher.Constraint("Horizontal", 4, 3, 0, 2))
sketch13.addConstraint(Sketcher.Constraint("Horizontal", 2, 2, 5, 1))
sketch13.addConstraint(Sketcher.Constraint("Horizontal", 4, 1, 5, 2))
sketch13.addConstraint(Sketcher.Constraint("Vertical", 4, 3, 2, 2))
sketch13.addConstraint(Sketcher.Constraint("Radius", 4, Q("0.03 in")))
sketch13.addConstraint(Sketcher.Constraint("DistanceX", -1, 1, 4, 3, Q("0.757 in")))
sketch13.addConstraint(Sketcher.Constraint("DistanceX", -1, 1, 5, 1, Q("0.512 in")))
sketch13.addConstraint(Sketcher.Constraint("DistanceX", 0, 1, 0, 2, 9.937791))
sketch13.addConstraint(Sketcher.Constraint("DistanceY", 1, 1, 1, 2, 13.741142))
sketch13.addConstraint(Sketcher.Constraint("DistanceY", -1, 1, 4, 3, 28.467534))
groove8 = body.newObject("PartDesign::Groove", "Groove007")
groove8.Profile = sketch13
groove8.ReferenceAxis = (sketch13, ["Axis0"])
groove8.Angle = 360
doc.recompute()

datumline = body.newObject("PartDesign::Line", "DatumLine")
datumline.Placement = App.Placement(App.Vector(0, -4.191, 0), App.Rotation(App.Vector(0, 0, 1), App.Vector(-1, 0, 0)))
polarpattern = body.newObject("PartDesign::PolarPattern", "PolarPattern")
polarpattern.Originals = [groove6]
polarpattern.Axis = (datumline, [""])
polarpattern.Angle = 360
polarpattern.Occurrences = 4
body.Tip = polarpattern

doc.recompute()
